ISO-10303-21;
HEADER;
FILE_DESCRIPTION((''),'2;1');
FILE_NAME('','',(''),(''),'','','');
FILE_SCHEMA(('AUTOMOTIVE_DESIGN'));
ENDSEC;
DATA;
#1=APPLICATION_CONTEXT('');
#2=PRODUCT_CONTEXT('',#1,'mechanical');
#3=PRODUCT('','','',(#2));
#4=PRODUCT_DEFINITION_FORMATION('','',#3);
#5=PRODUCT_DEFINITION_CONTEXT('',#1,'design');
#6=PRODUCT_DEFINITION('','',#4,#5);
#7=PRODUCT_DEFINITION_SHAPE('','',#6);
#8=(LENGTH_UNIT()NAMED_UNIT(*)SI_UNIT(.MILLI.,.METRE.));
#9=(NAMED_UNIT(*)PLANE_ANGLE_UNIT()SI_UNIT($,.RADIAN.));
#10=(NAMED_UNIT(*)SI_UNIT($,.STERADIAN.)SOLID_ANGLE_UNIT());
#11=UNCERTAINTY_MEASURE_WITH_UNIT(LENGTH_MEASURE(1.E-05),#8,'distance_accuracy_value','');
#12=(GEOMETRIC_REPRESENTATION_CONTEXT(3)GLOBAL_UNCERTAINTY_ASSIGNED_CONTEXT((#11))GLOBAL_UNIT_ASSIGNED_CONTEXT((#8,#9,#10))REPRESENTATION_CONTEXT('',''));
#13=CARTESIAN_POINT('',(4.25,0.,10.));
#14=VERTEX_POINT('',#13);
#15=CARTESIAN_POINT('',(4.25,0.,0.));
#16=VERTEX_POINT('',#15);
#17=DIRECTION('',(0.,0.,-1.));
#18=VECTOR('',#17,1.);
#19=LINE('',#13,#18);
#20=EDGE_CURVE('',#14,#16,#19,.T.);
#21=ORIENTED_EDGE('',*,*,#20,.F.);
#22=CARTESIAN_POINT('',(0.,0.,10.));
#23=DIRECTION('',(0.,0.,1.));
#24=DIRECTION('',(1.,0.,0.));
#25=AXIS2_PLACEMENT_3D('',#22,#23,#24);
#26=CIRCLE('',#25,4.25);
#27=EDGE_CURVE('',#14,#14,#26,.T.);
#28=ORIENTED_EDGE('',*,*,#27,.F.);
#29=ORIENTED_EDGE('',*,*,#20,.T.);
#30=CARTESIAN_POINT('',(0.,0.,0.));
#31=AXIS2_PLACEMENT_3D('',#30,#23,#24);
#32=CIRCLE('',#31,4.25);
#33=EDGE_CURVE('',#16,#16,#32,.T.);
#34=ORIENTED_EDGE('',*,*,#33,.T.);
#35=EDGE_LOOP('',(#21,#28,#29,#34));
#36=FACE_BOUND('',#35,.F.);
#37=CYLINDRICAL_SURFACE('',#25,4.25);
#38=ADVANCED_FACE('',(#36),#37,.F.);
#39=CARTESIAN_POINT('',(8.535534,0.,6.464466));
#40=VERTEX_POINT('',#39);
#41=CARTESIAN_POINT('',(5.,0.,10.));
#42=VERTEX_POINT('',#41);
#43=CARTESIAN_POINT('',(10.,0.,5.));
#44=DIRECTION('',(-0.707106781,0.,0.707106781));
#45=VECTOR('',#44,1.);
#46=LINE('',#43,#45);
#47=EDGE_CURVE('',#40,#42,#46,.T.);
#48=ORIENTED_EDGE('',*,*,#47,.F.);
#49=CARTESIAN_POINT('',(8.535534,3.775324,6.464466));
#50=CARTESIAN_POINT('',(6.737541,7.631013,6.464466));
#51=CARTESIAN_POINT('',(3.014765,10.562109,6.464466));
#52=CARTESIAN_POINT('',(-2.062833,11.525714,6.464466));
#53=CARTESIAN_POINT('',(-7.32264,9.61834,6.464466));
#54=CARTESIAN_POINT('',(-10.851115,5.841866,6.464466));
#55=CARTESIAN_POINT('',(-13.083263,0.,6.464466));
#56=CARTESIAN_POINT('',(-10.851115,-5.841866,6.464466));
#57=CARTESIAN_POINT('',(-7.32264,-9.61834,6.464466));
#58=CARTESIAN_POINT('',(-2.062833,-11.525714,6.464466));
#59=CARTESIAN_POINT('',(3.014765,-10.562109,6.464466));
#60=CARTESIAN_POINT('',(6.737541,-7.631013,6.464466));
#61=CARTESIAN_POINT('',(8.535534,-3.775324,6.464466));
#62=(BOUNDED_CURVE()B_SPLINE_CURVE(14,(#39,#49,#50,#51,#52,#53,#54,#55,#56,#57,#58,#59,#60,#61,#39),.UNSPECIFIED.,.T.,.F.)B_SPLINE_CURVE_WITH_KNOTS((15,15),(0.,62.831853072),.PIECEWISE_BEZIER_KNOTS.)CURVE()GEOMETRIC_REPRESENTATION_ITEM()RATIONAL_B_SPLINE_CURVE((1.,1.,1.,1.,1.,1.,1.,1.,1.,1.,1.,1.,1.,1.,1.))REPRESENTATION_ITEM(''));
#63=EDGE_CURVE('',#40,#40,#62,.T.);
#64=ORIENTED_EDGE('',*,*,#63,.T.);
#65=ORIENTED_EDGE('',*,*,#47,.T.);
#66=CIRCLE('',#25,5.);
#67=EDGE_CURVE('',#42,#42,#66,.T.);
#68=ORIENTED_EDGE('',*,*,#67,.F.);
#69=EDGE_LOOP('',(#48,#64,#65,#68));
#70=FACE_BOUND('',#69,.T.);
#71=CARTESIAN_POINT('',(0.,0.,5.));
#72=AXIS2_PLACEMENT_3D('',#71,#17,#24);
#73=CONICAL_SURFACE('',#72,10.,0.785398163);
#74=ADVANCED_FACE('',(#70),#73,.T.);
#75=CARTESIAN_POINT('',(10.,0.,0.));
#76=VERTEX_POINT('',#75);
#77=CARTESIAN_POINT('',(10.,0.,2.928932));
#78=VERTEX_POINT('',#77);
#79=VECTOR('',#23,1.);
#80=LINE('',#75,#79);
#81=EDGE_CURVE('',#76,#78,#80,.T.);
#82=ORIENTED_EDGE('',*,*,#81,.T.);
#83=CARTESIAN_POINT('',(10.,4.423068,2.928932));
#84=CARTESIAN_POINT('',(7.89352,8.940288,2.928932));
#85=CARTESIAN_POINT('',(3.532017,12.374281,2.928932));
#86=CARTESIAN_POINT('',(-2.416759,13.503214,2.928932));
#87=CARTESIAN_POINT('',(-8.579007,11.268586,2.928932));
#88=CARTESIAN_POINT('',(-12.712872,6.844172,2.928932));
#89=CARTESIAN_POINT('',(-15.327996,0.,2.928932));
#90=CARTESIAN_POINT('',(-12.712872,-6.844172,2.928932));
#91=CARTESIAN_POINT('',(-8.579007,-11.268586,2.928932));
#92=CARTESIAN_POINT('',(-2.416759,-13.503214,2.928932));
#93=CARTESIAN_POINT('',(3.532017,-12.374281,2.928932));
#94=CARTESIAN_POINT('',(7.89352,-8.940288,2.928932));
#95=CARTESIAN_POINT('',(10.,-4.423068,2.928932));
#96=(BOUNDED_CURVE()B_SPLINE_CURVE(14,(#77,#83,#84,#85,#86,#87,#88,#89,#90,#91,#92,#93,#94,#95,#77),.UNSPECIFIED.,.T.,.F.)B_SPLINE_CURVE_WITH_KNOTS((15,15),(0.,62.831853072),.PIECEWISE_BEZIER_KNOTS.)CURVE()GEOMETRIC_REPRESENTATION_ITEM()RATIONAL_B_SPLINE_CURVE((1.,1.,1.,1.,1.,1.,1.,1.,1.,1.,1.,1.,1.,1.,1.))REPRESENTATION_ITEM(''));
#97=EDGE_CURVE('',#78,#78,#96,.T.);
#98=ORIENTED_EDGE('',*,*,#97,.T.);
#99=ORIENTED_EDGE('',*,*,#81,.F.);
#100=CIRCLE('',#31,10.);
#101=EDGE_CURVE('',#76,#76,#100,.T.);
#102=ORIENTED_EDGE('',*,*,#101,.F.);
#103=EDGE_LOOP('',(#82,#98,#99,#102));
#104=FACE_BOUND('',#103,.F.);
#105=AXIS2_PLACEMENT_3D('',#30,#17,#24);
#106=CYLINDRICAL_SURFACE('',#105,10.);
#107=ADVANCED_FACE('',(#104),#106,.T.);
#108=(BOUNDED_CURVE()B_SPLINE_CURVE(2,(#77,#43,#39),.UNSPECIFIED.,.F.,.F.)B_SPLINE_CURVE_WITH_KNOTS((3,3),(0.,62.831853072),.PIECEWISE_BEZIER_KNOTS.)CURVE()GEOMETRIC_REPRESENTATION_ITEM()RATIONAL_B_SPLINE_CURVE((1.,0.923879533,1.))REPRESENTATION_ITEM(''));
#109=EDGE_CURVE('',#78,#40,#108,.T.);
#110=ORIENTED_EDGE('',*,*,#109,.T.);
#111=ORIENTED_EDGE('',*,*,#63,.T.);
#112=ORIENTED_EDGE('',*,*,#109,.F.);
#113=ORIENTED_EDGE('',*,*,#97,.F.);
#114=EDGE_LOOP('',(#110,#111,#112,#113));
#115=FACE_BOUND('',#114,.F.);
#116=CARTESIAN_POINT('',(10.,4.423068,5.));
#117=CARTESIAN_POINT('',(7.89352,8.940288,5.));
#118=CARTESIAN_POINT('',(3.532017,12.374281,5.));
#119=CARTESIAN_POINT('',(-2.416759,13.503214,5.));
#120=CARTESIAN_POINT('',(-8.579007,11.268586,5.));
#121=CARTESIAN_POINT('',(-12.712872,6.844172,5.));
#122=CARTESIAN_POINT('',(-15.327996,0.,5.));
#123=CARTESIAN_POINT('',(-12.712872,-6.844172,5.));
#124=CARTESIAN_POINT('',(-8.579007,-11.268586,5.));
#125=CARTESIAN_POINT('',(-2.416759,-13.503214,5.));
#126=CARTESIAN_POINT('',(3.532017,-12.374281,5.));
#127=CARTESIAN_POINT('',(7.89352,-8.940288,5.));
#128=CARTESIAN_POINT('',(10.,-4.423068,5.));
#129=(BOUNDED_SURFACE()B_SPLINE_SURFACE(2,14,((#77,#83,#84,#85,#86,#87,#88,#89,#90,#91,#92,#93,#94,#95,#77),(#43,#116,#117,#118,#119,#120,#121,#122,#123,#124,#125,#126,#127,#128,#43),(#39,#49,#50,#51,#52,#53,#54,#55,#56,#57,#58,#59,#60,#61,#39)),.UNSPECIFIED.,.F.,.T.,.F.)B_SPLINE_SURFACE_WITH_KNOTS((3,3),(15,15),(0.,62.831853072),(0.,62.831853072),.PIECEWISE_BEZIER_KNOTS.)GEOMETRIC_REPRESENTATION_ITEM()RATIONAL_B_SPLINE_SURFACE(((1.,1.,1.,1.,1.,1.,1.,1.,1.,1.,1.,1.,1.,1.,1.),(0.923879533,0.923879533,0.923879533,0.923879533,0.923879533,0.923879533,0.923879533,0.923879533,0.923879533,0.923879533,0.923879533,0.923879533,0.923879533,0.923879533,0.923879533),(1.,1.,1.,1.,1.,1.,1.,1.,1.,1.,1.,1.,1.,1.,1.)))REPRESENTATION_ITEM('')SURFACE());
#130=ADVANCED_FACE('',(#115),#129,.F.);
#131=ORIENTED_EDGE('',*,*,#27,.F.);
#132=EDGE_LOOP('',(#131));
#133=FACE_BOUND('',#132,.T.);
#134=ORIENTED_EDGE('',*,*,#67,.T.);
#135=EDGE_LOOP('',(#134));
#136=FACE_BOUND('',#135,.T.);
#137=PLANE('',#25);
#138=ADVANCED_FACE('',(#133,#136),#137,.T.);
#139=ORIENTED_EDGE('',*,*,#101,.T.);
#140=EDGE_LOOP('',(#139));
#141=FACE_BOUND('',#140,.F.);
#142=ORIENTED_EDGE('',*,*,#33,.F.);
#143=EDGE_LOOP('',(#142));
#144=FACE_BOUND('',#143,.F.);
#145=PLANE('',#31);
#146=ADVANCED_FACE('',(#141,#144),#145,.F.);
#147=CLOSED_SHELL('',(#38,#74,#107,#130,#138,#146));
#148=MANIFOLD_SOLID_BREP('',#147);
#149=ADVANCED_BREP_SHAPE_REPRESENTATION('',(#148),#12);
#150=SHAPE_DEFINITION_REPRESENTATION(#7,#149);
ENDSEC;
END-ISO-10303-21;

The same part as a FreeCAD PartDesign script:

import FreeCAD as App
import Part
import Sketcher

V = App.Vector


def edges_at(feature, points):
    """Names of the edges that pass closest to the given points."""
    edges = feature.Shape.Edges
    near = lambda p: min(range(len(edges)), key=lambda i: edges[i].distToShape(Part.Vertex(*p))[0])
    return sorted({f"Edge{near(p) + 1}" for p in points})

doc = App.newDocument("Part")
body = doc.addObject("PartDesign::Body", "Body")

sketch1 = body.newObject("Sketcher::SketchObject", "Sketch")
sketch1.AttachmentSupport = (doc.getObject("XY_Plane"), [""])
sketch1.MapMode = "FlatFace"
sketch1.addGeometry(Part.Circle(V(0, 0, 0), V(0, 0, 1), 10), False)
sketch1.addConstraint([
    Sketcher.Constraint("Coincident", 0, 3, -1, 1),
    Sketcher.Constraint("Diameter", 0, 20.0),
])
pad1 = body.newObject("PartDesign::Pad", "Pad")
pad1.Profile = sketch1
pad1.Length = 10

sketch2 = body.newObject("Sketcher::SketchObject", "Sketch001")
sketch2.AttachmentSupport = (doc.getObject("XY_Plane"), [""])
sketch2.MapMode = "FlatFace"
sketch2.AttachmentOffset = App.Placement(V(0, 0, 10), App.Rotation())
sketch2.addGeometry(Part.Circle(V(0, 0, 0), V(0, 0, 1), 4.2), False)
sketch2.addConstraint([
    Sketcher.Constraint("Coincident", 0, 3, -1, 1),
    Sketcher.Constraint("Diameter", 0, 8.5),
])
pocket1 = body.newObject("PartDesign::Pocket", "Pocket")
pocket1.Profile = sketch2
pocket1.Type = "ThroughAll"
doc.recompute()

chamfer = body.newObject("PartDesign::Chamfer", "Chamfer")
chamfer.Base = (pocket1, edges_at(pocket1, [(-10, 0, 10)]))
chamfer.Size = 5
doc.recompute()

fillet = body.newObject("PartDesign::Fillet", "Fillet")
fillet.Base = (chamfer, edges_at(chamfer, [(-10, 0, 5)]))
fillet.Radius = 5

doc.recompute()
